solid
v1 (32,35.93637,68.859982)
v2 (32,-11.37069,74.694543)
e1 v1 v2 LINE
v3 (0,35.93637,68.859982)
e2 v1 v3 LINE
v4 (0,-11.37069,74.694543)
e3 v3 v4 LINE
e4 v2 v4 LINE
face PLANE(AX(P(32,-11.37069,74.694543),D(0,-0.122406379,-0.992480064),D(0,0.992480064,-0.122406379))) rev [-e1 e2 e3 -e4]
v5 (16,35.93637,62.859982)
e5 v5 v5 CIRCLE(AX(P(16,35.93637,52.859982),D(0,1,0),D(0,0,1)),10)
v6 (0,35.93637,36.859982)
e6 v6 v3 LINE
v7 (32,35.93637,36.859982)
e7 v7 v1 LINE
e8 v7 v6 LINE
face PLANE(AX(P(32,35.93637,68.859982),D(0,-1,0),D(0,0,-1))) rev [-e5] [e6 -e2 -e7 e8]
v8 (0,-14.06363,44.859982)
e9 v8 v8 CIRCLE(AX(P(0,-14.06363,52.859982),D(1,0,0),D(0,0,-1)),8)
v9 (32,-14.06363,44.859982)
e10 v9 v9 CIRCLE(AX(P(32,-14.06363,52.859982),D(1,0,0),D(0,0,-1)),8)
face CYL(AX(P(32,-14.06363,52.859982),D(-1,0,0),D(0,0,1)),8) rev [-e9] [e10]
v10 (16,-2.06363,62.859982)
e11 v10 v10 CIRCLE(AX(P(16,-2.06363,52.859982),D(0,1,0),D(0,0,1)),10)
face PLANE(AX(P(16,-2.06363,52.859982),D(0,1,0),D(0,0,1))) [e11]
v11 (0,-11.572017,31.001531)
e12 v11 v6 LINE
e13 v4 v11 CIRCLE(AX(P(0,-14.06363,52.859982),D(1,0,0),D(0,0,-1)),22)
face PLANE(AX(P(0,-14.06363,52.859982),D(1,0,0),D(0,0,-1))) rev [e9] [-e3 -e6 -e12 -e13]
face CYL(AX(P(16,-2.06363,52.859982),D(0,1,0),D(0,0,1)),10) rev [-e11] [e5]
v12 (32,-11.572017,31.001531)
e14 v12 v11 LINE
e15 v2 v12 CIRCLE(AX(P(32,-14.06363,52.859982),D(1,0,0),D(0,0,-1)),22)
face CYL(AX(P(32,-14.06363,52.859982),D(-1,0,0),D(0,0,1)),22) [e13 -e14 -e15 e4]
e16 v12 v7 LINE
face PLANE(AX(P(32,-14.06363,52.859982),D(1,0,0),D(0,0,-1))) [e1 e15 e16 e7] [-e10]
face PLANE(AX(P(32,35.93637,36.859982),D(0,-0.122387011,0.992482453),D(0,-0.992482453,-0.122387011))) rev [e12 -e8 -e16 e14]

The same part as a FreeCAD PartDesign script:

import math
import FreeCAD as App
import Part
import Sketcher

V = App.Vector

doc = App.newDocument("Part")
params = doc.addObject("Spreadsheet::Sheet", "Params")
for row, (alias, value) in enumerate([
    ("sketch1_diameter", "16 mm"),
    ("sketch1_radius", "22 mm"),
    ("sketch1_height", "32 mm"),
    ("pad1_length", "32 mm"),
    ("sketch2_diameter", "20 mm"),
    ("pocket1_length", "38 mm"),
], start=1):
    params.set(f"A{row}", alias)
    params.set(f"B{row}", "=" + value)
    params.setAlias(f"B{row}", alias)

body = doc.addObject("PartDesign::Body", "Body")

sketch1 = body.newObject("Sketcher::SketchObject", "Sketch")
sketch1.AttachmentSupport = (doc.getObject("YZ_Plane"), [""])
sketch1.MapMode = "FlatFace"
sketch1.addGeometry(Part.LineSegment(V(35.93637, 68.859982, 0), V(-11.37069, 74.694543, 0)), False)
sketch1.addGeometry(Part.ArcOfCircle(Part.Circle(V(-14.06363, 52.859982, 0), V(0, 0, 1), 22), math.radians(82.968998), math.radians(276.502995)), False)
sketch1.addGeometry(Part.LineSegment(V(-11.572017, 31.001531, 0), V(35.93637, 36.859982, 0)), False)
sketch1.addGeometry(Part.LineSegment(V(35.93637, 36.859982, 0), V(35.93637, 68.859982, 0)), False)
sketch1.addGeometry(Part.Circle(V(-14.06363, 52.859982, 0), V(0, 0, 1), 8), False)
sketch1.addConstraint(Sketcher.Constraint("Tangent", 0, 2, 1, 1))
sketch1.addConstraint(Sketcher.Constraint("Coincident", 1, 2, 2, 1))
sketch1.addConstraint(Sketcher.Constraint("Coincident", 2, 2, 3, 1))
sketch1.addConstraint(Sketcher.Constraint("Coincident", 3, 2, 0, 1))
sketch1.addConstraint(Sketcher.Constraint("Vertical", 3))
sketch1.addConstraint(Sketcher.Constraint("Coincident", 4, 3, 1, 3))
sketch1.addConstraint(Sketcher.Constraint("Diameter", 4, 16.0))
sketch1.addConstraint(Sketcher.Constraint("Radius", 1, 22.0))
sketch1.addConstraint(Sketcher.Constraint("DistanceY", 3, 1, 3, 2, 32.0))
sketch1.addConstraint(Sketcher.Constraint("DistanceX", 4, 3, 2, 2, 50.0))
sketch1.addConstraint(Sketcher.Constraint("DistanceY", 2, 2, 4, 3, 16.0))
sketch1.addConstraint(Sketcher.Constraint("Distance", 2, 47.868238))
sketch1.addConstraint(Sketcher.Constraint("DistanceX", 1, 3, -1, 1, 14.06363))
sketch1.addConstraint(Sketcher.Constraint("DistanceY", -1, 1, 1, 2, 31.001531))
sketch1.setExpression("Constraints[6]", "Params.sketch1_diameter")
sketch1.setExpression("Constraints[7]", "Params.sketch1_radius")
sketch1.setExpression("Constraints[8]", "Params.sketch1_height")
pad1 = body.newObject("PartDesign::Pad", "Pad")
pad1.Profile = sketch1
pad1.setExpression("Length", "Params.pad1_length")

sketch2 = body.newObject("Sketcher::SketchObject", "Sketch001")
sketch2.AttachmentSupport = (doc.getObject("XZ_Plane"), [""])
sketch2.MapMode = "FlatFace"
sketch2.AttachmentOffset = App.Placement(V(0, 0, -35.93637), App.Rotation())
sketch2.addGeometry(Part.Circle(V(16, 52.859982, 0), V(0, 0, 1), 10), False)
sketch2.addConstraint(Sketcher.Constraint("Diameter", 0, 20.0))
sketch2.addConstraint(Sketcher.Constraint("DistanceX", -1, 1, 0, 3, 16.0))
sketch2.addConstraint(Sketcher.Constraint("DistanceY", -1, 1, 0, 3, 52.859982))
sketch2.setExpression("Constraints[0]", "Params.sketch2_diameter")
pocket1 = body.newObject("PartDesign::Pocket", "Pocket")
pocket1.Profile = sketch2
pocket1.setExpression("Length", "Params.pocket1_length")
pocket1.Reversed = True

doc.recompute()
